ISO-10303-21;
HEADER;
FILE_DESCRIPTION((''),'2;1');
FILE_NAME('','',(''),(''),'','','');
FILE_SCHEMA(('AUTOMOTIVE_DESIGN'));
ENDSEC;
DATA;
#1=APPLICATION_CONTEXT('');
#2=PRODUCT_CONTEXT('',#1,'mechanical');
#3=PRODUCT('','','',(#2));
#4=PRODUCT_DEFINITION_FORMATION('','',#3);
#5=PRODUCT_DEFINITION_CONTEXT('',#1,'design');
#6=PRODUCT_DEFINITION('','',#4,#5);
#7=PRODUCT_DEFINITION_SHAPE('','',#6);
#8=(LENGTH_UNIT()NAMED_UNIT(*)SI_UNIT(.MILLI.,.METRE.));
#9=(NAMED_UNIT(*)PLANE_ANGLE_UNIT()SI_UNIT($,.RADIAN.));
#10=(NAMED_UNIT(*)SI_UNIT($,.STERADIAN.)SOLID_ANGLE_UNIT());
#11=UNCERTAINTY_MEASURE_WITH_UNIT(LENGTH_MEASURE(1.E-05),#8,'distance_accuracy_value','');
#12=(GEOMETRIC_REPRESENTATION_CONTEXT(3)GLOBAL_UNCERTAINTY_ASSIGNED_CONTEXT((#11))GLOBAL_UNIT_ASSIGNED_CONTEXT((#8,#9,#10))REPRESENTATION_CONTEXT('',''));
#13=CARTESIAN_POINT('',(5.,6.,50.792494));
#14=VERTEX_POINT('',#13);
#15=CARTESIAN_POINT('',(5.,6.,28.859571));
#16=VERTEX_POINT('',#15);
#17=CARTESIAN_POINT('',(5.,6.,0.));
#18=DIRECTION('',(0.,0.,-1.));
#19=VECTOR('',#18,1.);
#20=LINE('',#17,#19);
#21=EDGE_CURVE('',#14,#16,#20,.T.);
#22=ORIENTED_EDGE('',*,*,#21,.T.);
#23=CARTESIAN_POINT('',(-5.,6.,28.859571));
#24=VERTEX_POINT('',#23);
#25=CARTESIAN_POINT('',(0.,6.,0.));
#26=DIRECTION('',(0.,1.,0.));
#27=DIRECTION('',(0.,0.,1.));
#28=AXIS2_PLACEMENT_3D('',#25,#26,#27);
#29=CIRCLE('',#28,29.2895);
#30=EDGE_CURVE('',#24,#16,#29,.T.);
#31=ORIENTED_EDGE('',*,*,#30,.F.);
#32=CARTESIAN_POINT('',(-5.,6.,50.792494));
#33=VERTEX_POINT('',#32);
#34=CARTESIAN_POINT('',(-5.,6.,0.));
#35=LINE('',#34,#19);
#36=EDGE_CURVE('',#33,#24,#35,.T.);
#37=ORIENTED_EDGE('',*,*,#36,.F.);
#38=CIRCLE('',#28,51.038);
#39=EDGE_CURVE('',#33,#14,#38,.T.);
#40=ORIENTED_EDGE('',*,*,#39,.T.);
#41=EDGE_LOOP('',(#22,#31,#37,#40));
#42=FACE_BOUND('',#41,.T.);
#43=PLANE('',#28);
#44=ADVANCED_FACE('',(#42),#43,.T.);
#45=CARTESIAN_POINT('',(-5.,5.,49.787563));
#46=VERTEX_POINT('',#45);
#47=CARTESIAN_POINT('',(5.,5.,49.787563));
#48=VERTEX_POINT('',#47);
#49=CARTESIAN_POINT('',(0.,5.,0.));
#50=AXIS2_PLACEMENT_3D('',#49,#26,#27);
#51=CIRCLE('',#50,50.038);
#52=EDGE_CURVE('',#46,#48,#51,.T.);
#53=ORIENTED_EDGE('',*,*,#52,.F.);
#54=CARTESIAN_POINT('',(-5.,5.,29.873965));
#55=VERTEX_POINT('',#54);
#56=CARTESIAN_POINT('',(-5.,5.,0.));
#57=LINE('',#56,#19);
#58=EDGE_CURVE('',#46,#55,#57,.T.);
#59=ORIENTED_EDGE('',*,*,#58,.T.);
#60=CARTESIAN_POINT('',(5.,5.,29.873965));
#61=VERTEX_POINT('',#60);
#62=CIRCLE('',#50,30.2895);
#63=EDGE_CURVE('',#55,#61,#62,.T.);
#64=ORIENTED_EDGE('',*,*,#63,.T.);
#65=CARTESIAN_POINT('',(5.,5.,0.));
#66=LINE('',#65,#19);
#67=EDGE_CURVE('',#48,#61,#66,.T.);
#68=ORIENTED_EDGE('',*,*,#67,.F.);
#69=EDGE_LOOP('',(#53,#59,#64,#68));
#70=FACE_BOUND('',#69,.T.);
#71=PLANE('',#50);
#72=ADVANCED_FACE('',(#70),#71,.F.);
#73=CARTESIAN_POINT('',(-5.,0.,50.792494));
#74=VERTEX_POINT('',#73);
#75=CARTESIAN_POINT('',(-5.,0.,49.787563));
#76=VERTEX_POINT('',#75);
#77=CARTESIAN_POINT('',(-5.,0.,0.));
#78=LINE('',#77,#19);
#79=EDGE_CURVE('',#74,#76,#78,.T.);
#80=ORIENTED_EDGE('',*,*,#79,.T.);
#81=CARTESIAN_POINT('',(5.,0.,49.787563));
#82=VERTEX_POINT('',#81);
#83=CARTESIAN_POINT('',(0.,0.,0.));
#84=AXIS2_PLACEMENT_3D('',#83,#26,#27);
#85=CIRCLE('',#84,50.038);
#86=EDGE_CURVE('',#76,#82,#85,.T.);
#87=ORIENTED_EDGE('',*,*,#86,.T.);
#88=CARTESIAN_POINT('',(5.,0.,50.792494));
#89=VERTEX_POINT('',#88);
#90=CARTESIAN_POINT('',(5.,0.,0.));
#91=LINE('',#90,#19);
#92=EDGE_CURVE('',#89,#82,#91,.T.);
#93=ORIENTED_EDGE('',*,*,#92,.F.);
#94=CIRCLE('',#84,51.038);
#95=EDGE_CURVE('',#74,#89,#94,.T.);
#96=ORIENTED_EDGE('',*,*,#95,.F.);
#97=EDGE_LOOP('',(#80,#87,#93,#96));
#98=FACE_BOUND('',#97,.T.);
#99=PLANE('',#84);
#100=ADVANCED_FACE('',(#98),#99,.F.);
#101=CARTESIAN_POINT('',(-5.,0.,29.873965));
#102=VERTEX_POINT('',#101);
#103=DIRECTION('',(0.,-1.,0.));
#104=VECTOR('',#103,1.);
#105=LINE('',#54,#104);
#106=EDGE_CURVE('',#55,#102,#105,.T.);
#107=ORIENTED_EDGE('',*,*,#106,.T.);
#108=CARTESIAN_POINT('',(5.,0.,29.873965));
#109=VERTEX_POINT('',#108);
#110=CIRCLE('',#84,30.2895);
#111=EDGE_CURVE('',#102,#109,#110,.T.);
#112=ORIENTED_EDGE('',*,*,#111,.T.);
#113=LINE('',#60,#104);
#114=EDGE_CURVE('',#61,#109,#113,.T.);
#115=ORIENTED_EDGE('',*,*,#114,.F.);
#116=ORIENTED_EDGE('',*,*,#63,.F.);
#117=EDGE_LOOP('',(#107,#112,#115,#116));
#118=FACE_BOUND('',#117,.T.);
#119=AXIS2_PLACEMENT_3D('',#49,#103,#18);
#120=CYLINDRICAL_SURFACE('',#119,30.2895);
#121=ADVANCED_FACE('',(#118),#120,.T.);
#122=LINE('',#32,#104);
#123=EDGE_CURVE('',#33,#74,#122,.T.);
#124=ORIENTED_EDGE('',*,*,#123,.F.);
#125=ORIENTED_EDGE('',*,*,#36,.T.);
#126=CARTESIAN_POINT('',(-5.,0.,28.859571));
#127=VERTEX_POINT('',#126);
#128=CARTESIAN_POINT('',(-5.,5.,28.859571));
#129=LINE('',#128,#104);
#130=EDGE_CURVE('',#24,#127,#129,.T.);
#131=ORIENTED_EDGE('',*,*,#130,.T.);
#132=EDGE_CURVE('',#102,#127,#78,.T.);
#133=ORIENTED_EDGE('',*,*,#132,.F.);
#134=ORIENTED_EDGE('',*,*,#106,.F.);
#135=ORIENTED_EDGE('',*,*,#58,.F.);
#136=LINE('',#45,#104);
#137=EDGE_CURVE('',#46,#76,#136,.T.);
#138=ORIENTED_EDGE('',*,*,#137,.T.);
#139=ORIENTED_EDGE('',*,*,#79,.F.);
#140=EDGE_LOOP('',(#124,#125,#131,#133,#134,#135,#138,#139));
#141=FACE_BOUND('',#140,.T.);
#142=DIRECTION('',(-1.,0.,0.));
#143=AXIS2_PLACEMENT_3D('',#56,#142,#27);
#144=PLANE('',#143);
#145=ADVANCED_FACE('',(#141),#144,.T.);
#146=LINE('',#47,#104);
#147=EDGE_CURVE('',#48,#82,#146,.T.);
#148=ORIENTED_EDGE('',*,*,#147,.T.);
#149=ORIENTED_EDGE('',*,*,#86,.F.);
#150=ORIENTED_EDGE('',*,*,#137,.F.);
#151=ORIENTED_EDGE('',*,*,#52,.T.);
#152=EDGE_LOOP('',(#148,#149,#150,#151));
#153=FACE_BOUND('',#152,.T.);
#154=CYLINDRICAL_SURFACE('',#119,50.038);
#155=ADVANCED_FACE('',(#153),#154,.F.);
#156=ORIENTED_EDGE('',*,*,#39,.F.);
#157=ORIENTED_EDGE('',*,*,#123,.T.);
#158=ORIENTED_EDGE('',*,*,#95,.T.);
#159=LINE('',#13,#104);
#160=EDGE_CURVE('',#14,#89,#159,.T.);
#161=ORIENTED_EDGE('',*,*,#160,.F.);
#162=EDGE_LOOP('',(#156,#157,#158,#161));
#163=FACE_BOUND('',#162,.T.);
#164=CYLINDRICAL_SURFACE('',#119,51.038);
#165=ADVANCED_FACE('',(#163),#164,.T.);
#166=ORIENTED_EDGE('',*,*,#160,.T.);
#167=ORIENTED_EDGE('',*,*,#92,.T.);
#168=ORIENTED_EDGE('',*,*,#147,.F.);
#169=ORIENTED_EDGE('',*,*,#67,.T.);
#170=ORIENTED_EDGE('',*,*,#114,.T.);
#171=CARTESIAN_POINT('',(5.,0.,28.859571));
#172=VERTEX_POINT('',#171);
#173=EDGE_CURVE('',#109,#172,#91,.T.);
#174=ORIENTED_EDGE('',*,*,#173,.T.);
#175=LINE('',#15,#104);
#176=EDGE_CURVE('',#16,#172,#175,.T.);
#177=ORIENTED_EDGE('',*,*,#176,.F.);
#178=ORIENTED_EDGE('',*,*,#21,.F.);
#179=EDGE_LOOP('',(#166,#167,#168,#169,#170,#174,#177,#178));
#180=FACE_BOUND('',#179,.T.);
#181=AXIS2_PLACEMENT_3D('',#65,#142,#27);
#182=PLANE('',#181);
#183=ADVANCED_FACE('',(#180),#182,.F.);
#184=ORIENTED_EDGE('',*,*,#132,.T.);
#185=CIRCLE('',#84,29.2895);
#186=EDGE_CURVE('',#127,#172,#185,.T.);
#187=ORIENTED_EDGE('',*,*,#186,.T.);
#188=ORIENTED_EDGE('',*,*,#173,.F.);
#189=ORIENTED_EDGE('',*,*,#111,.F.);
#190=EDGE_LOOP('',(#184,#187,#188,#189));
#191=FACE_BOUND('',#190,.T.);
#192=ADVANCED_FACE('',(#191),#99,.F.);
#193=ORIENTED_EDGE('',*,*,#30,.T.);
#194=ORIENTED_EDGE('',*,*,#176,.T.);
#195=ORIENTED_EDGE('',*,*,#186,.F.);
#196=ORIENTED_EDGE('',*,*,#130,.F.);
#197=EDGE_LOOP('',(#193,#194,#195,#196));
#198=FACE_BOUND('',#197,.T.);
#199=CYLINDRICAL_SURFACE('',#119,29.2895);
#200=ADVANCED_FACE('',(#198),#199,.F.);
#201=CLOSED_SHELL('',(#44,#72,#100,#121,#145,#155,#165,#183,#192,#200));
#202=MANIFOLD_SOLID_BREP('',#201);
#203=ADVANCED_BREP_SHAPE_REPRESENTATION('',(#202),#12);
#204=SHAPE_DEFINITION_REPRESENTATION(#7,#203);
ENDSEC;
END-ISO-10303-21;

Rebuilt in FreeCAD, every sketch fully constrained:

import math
import FreeCAD as App
import Part
import Sketcher

V = App.Vector
Q = App.Units.Quantity


def faces_at(feature, points):
    """Names of the faces that lie closest to the given points."""
    faces = feature.Shape.Faces
    near = lambda p: min(range(len(faces)), key=lambda i: faces[i].distToShape(Part.Vertex(*p))[0])
    return sorted({f"Face{near(p) + 1}" for p in points})

doc = App.newDocument("Part")
body = doc.addObject("PartDesign::Body", "Body")

# Sketch on XZ plane
sketch1 = body.newObject("Sketcher::SketchObject", "Sketch")
sketch1.AttachmentSupport = (doc.getObject("XZ_Plane"), [""])
sketch1.MapMode = "FlatFace"
sketch1.addGeometry([
    Part.ArcOfCircle(Part.Circle(V(0, 0, 0), V(0, 0, 1), 50), math.radians(84.27), math.radians(95.73)),
    Part.LineSegment(V(5, 50, 0), V(5, 30, 0)),
    Part.ArcOfCircle(Part.Circle(V(0, 0, 0), V(0, 0, 1), 30), math.radians(80.5), math.radians(99.5)),
    Part.LineSegment(V(-5, 30, 0), V(-5, 50, 0)),
], False)
sketch1.addConstraint([
    Sketcher.Constraint("Coincident", 0, 1, 1, 1),
    Sketcher.Constraint("Coincident", 1, 2, 2, 1),
    Sketcher.Constraint("Coincident", 2, 2, 3, 1),
    Sketcher.Constraint("Coincident", 3, 2, 0, 2),
    Sketcher.Constraint("Vertical", 1),
    Sketcher.Constraint("Vertical", 3),
    Sketcher.Constraint("Coincident", 0, 3, -1, 1),
    Sketcher.Constraint("Coincident", 2, 3, -1, 1),
    Sketcher.Constraint("Horizontal", 1, 2, 2, 2),
    Sketcher.Constraint("Radius", 0, Q("1.97 in")),
    Sketcher.Constraint("Radius", 2, Q("1.1925 in")),
    Sketcher.Constraint("DistanceY", 1, 2, 1, 1, Q("0.7839999 in")),
])
pad1 = body.newObject("PartDesign::Pad", "Pad")
pad1.Profile = sketch1
pad1.Length = 5
pad1.Reversed = True
doc.recompute()

thickness = body.newObject("PartDesign::Thickness", "Thickness")
thickness.Base = (pad1, faces_at(pad1, [(5, 2.5, 39.831), (-5, 2.5, 39.831), (0, 0, 39.956)]))
thickness.Value = 1
thickness.Reversed = False
thickness.Join = "Intersection"

doc.recompute()
